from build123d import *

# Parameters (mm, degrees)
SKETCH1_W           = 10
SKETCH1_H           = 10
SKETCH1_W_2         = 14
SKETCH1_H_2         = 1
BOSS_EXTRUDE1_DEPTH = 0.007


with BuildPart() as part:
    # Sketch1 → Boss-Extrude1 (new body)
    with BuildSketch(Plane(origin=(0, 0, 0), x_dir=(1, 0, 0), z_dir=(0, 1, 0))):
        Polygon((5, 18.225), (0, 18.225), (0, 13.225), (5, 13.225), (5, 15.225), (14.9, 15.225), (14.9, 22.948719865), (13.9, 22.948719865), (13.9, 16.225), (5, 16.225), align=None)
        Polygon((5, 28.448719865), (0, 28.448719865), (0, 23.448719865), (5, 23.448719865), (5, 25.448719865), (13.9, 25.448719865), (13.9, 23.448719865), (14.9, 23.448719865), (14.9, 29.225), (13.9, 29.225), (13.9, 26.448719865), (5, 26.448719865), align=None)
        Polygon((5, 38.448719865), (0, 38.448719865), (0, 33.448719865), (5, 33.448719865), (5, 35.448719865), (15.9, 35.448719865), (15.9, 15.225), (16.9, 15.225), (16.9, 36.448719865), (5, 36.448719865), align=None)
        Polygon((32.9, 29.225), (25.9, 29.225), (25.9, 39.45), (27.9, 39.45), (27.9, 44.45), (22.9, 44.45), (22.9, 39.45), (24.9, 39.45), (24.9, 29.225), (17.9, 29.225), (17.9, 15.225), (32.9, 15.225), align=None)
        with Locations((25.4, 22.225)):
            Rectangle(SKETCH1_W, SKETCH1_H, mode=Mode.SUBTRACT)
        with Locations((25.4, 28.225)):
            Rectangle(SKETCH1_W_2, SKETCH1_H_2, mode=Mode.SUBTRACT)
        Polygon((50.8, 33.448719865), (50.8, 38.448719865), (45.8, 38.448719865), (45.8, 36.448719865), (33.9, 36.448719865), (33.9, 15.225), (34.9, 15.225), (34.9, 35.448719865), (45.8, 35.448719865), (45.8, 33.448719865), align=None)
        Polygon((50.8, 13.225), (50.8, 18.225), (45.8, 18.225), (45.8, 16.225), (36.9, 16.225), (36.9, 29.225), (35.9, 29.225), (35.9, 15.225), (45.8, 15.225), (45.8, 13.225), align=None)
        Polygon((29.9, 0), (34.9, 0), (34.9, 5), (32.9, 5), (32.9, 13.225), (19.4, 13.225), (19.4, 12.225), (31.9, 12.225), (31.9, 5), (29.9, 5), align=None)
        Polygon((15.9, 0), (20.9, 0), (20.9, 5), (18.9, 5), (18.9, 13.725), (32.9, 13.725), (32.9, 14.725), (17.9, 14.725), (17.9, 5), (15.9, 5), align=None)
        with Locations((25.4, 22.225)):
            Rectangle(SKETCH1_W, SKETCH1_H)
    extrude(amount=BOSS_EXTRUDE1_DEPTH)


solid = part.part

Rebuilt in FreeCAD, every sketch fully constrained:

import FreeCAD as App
import Part
import Sketcher
Q = App.Units.Quantity

doc = App.newDocument("Part")
body = doc.addObject("PartDesign::Body", "Body")
body.AllowCompound = True

sketch1 = body.newObject("Sketcher::SketchObject", "Sketch")
sketch1.AttachmentSupport = (doc.getObject("XZ_Plane"), [""])
sketch1.MapMode = "FlatFace"
sketch1.addGeometry([
    Part.LineSegment(App.Vector(5, -18.2, 0), App.Vector(0, -18.2, 0)),
    Part.LineSegment(App.Vector(0, -18.2, 0), App.Vector(0, -13.2, 0)),
    Part.LineSegment(App.Vector(0, -13.2, 0), App.Vector(5, -13.2, 0)),
    Part.LineSegment(App.Vector(5, -13.2, 0), App.Vector(5, -15.2, 0)),
    Part.LineSegment(App.Vector(5, -15.2, 0), App.Vector(14.9, -15.2, 0)),
    Part.LineSegment(App.Vector(14.9, -15.2, 0), App.Vector(14.9, -22.9, 0)),
    Part.LineSegment(App.Vector(14.9, -22.9, 0), App.Vector(13.9, -22.9, 0)),
    Part.LineSegment(App.Vector(13.9, -22.9, 0), App.Vector(13.9, -16.2, 0)),
    Part.LineSegment(App.Vector(13.9, -16.2, 0), App.Vector(5, -16.2, 0)),
    Part.LineSegment(App.Vector(5, -16.2, 0), App.Vector(5, -18.2, 0)),
    Part.LineSegment(App.Vector(5, -28.4, 0), App.Vector(0, -28.4, 0)),
    Part.LineSegment(App.Vector(0, -28.4, 0), App.Vector(0, -23.4, 0)),
    Part.LineSegment(App.Vector(0, -23.4, 0), App.Vector(5, -23.4, 0)),
    Part.LineSegment(App.Vector(5, -23.4, 0), App.Vector(5, -25.4, 0)),
    Part.LineSegment(App.Vector(5, -25.4, 0), App.Vector(13.9, -25.4, 0)),
    Part.LineSegment(App.Vector(13.9, -25.4, 0), App.Vector(13.9, -23.4, 0)),
    Part.LineSegment(App.Vector(13.9, -23.4, 0), App.Vector(14.9, -23.4, 0)),
    Part.LineSegment(App.Vector(14.9, -23.4, 0), App.Vector(14.9, -29.2, 0)),
    Part.LineSegment(App.Vector(14.9, -29.2, 0), App.Vector(13.9, -29.2, 0)),
    Part.LineSegment(App.Vector(13.9, -29.2, 0), App.Vector(13.9, -26.4, 0)),
    Part.LineSegment(App.Vector(13.9, -26.4, 0), App.Vector(5, -26.4, 0)),
    Part.LineSegment(App.Vector(5, -26.4, 0), App.Vector(5, -28.4, 0)),
    Part.LineSegment(App.Vector(5, -38.4, 0), App.Vector(0, -38.4, 0)),
    Part.LineSegment(App.Vector(0, -38.4, 0), App.Vector(0, -33.4, 0)),
    Part.LineSegment(App.Vector(0, -33.4, 0), App.Vector(5, -33.4, 0)),
    Part.LineSegment(App.Vector(5, -33.4, 0), App.Vector(5, -35.4, 0)),
    Part.LineSegment(App.Vector(5, -35.4, 0), App.Vector(15.9, -35.4, 0)),
    Part.LineSegment(App.Vector(15.9, -35.4, 0), App.Vector(15.9, -15.2, 0)),
    Part.LineSegment(App.Vector(15.9, -15.2, 0), App.Vector(16.9, -15.2, 0)),
    Part.LineSegment(App.Vector(16.9, -15.2, 0), App.Vector(16.9, -36.4, 0)),
    Part.LineSegment(App.Vector(16.9, -36.4, 0), App.Vector(5, -36.4, 0)),
    Part.LineSegment(App.Vector(5, -36.4, 0), App.Vector(5, -38.4, 0)),
    Part.LineSegment(App.Vector(32.9, -29.2, 0), App.Vector(25.9, -29.2, 0)),
    Part.LineSegment(App.Vector(25.9, -29.2, 0), App.Vector(25.9, -39.5, 0)),
    Part.LineSegment(App.Vector(25.9, -39.5, 0), App.Vector(27.9, -39.5, 0)),
    Part.LineSegment(App.Vector(27.9, -39.5, 0), App.Vector(27.9, -44.5, 0)),
    Part.LineSegment(App.Vector(27.9, -44.5, 0), App.Vector(22.9, -44.5, 0)),
    Part.LineSegment(App.Vector(22.9, -44.5, 0), App.Vector(22.9, -39.5, 0)),
    Part.LineSegment(App.Vector(22.9, -39.5, 0), App.Vector(24.9, -39.5, 0)),
    Part.LineSegment(App.Vector(24.9, -39.5, 0), App.Vector(24.9, -29.2, 0)),
    Part.LineSegment(App.Vector(24.9, -29.2, 0), App.Vector(17.9, -29.2, 0)),
    Part.LineSegment(App.Vector(17.9, -29.2, 0), App.Vector(17.9, -15.2, 0)),
    Part.LineSegment(App.Vector(17.9, -15.2, 0), App.Vector(32.9, -15.2, 0)),
    Part.LineSegment(App.Vector(32.9, -15.2, 0), App.Vector(32.9, -29.2, 0)),
    Part.LineSegment(App.Vector(32.4, -27.7, 0), App.Vector(18.4, -27.7, 0)),
    Part.LineSegment(App.Vector(18.4, -27.7, 0), App.Vector(18.4, -28.7, 0)),
    Part.LineSegment(App.Vector(18.4, -28.7, 0), App.Vector(32.4, -28.7, 0)),
    Part.LineSegment(App.Vector(32.4, -28.7, 0), App.Vector(32.4, -27.7, 0)),
    Part.LineSegment(App.Vector(50.8, -33.4, 0), App.Vector(50.8, -38.4, 0)),
    Part.LineSegment(App.Vector(50.8, -38.4, 0), App.Vector(45.8, -38.4, 0)),
    Part.LineSegment(App.Vector(45.8, -38.4, 0), App.Vector(45.8, -36.4, 0)),
    Part.LineSegment(App.Vector(45.8, -36.4, 0), App.Vector(33.9, -36.4, 0)),
    Part.LineSegment(App.Vector(33.9, -36.4, 0), App.Vector(33.9, -15.2, 0)),
    Part.LineSegment(App.Vector(33.9, -15.2, 0), App.Vector(34.9, -15.2, 0)),
    Part.LineSegment(App.Vector(34.9, -15.2, 0), App.Vector(34.9, -35.4, 0)),
    Part.LineSegment(App.Vector(34.9, -35.4, 0), App.Vector(45.8, -35.4, 0)),
    Part.LineSegment(App.Vector(45.8, -35.4, 0), App.Vector(45.8, -33.4, 0)),
    Part.LineSegment(App.Vector(45.8, -33.4, 0), App.Vector(50.8, -33.4, 0)),
    Part.LineSegment(App.Vector(50.8, -13.2, 0), App.Vector(50.8, -18.2, 0)),
    Part.LineSegment(App.Vector(50.8, -18.2, 0), App.Vector(45.8, -18.2, 0)),
    Part.LineSegment(App.Vector(45.8, -18.2, 0), App.Vector(45.8, -16.2, 0)),
    Part.LineSegment(App.Vector(45.8, -16.2, 0), App.Vector(36.9, -16.2, 0)),
    Part.LineSegment(App.Vector(36.9, -16.2, 0), App.Vector(36.9, -29.2, 0)),
    Part.LineSegment(App.Vector(36.9, -29.2, 0), App.Vector(35.9, -29.2, 0)),
    Part.LineSegment(App.Vector(35.9, -29.2, 0), App.Vector(35.9, -15.2, 0)),
    Part.LineSegment(App.Vector(35.9, -15.2, 0), App.Vector(45.8, -15.2, 0)),
    Part.LineSegment(App.Vector(45.8, -15.2, 0), App.Vector(45.8, -13.2, 0)),
    Part.LineSegment(App.Vector(45.8, -13.2, 0), App.Vector(50.8, -13.2, 0)),
    Part.LineSegment(App.Vector(29.9, 0, 0), App.Vector(34.9, 0, 0)),
    Part.LineSegment(App.Vector(34.9, 0, 0), App.Vector(34.9, -5, 0)),
    Part.LineSegment(App.Vector(34.9, -5, 0), App.Vector(32.9, -5, 0)),
    Part.LineSegment(App.Vector(32.9, -5, 0), App.Vector(32.9, -13.2, 0)),
    Part.LineSegment(App.Vector(32.9, -13.2, 0), App.Vector(19.4, -13.2, 0)),
    Part.LineSegment(App.Vector(19.4, -13.2, 0), App.Vector(19.4, -12.2, 0)),
    Part.LineSegment(App.Vector(19.4, -12.2, 0), App.Vector(31.9, -12.2, 0)),
    Part.LineSegment(App.Vector(31.9, -12.2, 0), App.Vector(31.9, -5, 0)),
    Part.LineSegment(App.Vector(31.9, -5, 0), App.Vector(29.9, -5, 0)),
    Part.LineSegment(App.Vector(29.9, -5, 0), App.Vector(29.9, 0, 0)),
    Part.LineSegment(App.Vector(15.9, 0, 0), App.Vector(20.9, 0, 0)),
    Part.LineSegment(App.Vector(20.9, 0, 0), App.Vector(20.9, -5, 0)),
    Part.LineSegment(App.Vector(20.9, -5, 0), App.Vector(18.9, -5, 0)),
    Part.LineSegment(App.Vector(18.9, -5, 0), App.Vector(18.9, -13.7, 0)),
    Part.LineSegment(App.Vector(18.9, -13.7, 0), App.Vector(32.9, -13.7, 0)),
    Part.LineSegment(App.Vector(32.9, -13.7, 0), App.Vector(32.9, -14.7, 0)),
    Part.LineSegment(App.Vector(32.9, -14.7, 0), App.Vector(17.9, -14.7, 0)),
    Part.LineSegment(App.Vector(17.9, -14.7, 0), App.Vector(17.9, -5, 0)),
    Part.LineSegment(App.Vector(17.9, -5, 0), App.Vector(15.9, -5, 0)),
    Part.LineSegment(App.Vector(15.9, -5, 0), App.Vector(15.9, 0, 0)),
], False)
sketch1.addConstraint([
    Sketcher.Constraint("Coincident", 0, 2, 1, 1),
    Sketcher.Constraint("Coincident", 1, 2, 2, 1),
    Sketcher.Constraint("Coincident", 2, 2, 3, 1),
    Sketcher.Constraint("Coincident", 3, 2, 4, 1),
    Sketcher.Constraint("Coincident", 4, 2, 5, 1),
    Sketcher.Constraint("Coincident", 5, 2, 6, 1),
    Sketcher.Constraint("Coincident", 6, 2, 7, 1),
    Sketcher.Constraint("Coincident", 7, 2, 8, 1),
    Sketcher.Constraint("Coincident", 8, 2, 9, 1),
    Sketcher.Constraint("Coincident", 9, 2, 0, 1),
    Sketcher.Constraint("Coincident", 10, 2, 11, 1),
    Sketcher.Constraint("Coincident", 11, 2, 12, 1),
    Sketcher.Constraint("Coincident", 12, 2, 13, 1),
    Sketcher.Constraint("Coincident", 13, 2, 14, 1),
    Sketcher.Constraint("Coincident", 14, 2, 15, 1),
    Sketcher.Constraint("Coincident", 15, 2, 16, 1),
    Sketcher.Constraint("Coincident", 16, 2, 17, 1),
    Sketcher.Constraint("Coincident", 17, 2, 18, 1),
    Sketcher.Constraint("Coincident", 18, 2, 19, 1),
    Sketcher.Constraint("Coincident", 19, 2, 20, 1),
    Sketcher.Constraint("Coincident", 20, 2, 21, 1),
    Sketcher.Constraint("Coincident", 21, 2, 10, 1),
    Sketcher.Constraint("Coincident", 22, 2, 23, 1),
    Sketcher.Constraint("Coincident", 23, 2, 24, 1),
    Sketcher.Constraint("Coincident", 24, 2, 25, 1),
    Sketcher.Constraint("Coincident", 25, 2, 26, 1),
    Sketcher.Constraint("Coincident", 26, 2, 27, 1),
    Sketcher.Constraint("Coincident", 27, 2, 28, 1),
    Sketcher.Constraint("Coincident", 28, 2, 29, 1),
    Sketcher.Constraint("Coincident", 29, 2, 30, 1),
    Sketcher.Constraint("Coincident", 30, 2, 31, 1),
    Sketcher.Constraint("Coincident", 31, 2, 22, 1),
    Sketcher.Constraint("Coincident", 32, 2, 33, 1),
    Sketcher.Constraint("Coincident", 33, 2, 34, 1),
    Sketcher.Constraint("Coincident", 34, 2, 35, 1),
    Sketcher.Constraint("Coincident", 35, 2, 36, 1),
    Sketcher.Constraint("Coincident", 36, 2, 37, 1),
    Sketcher.Constraint("Coincident", 37, 2, 38, 1),
    Sketcher.Constraint("Coincident", 38, 2, 39, 1),
    Sketcher.Constraint("Coincident", 39, 2, 40, 1),
    Sketcher.Constraint("Coincident", 40, 2, 41, 1),
    Sketcher.Constraint("Coincident", 41, 2, 42, 1),
    Sketcher.Constraint("Coincident", 42, 2, 43, 1),
    Sketcher.Constraint("Coincident", 43, 2, 32, 1),
    Sketcher.Constraint("Coincident", 44, 2, 45, 1),
    Sketcher.Constraint("Coincident", 45, 2, 46, 1),
    Sketcher.Constraint("Coincident", 46, 2, 47, 1),
    Sketcher.Constraint("Coincident", 47, 2, 44, 1),
    Sketcher.Constraint("Coincident", 48, 2, 49, 1),
    Sketcher.Constraint("Coincident", 49, 2, 50, 1),
    Sketcher.Constraint("Coincident", 50, 2, 51, 1),
    Sketcher.Constraint("Coincident", 51, 2, 52, 1),
    Sketcher.Constraint("Coincident", 52, 2, 53, 1),
    Sketcher.Constraint("Coincident", 53, 2, 54, 1),
    Sketcher.Constraint("Coincident", 54, 2, 55, 1),
    Sketcher.Constraint("Coincident", 55, 2, 56, 1),
    Sketcher.Constraint("Coincident", 56, 2, 57, 1),
    Sketcher.Constraint("Coincident", 57, 2, 48, 1),
    Sketcher.Constraint("Coincident", 58, 2, 59, 1),
    Sketcher.Constraint("Coincident", 59, 2, 60, 1),
    Sketcher.Constraint("Coincident", 60, 2, 61, 1),
    Sketcher.Constraint("Coincident", 61, 2, 62, 1),
    Sketcher.Constraint("Coincident", 62, 2, 63, 1),
    Sketcher.Constraint("Coincident", 63, 2, 64, 1),
    Sketcher.Constraint("Coincident", 64, 2, 65, 1),
    Sketcher.Constraint("Coincident", 65, 2, 66, 1),
    Sketcher.Constraint("Coincident", 66, 2, 67, 1),
    Sketcher.Constraint("Coincident", 67, 2, 58, 1),
    Sketcher.Constraint("Coincident", 68, 2, 69, 1),
    Sketcher.Constraint("Coincident", 69, 2, 70, 1),
    Sketcher.Constraint("Coincident", 70, 2, 71, 1),
    Sketcher.Constraint("Coincident", 71, 2, 72, 1),
    Sketcher.Constraint("Coincident", 72, 2, 73, 1),
    Sketcher.Constraint("Coincident", 73, 2, 74, 1),
    Sketcher.Constraint("Coincident", 74, 2, 75, 1),
    Sketcher.Constraint("Coincident", 75, 2, 76, 1),
    Sketcher.Constraint("Coincident", 76, 2, 77, 1),
    Sketcher.Constraint("Coincident", 77, 2, 68, 1),
    Sketcher.Constraint("Coincident", 78, 2, 79, 1),
    Sketcher.Constraint("Coincident", 79, 2, 80, 1),
    Sketcher.Constraint("Coincident", 80, 2, 81, 1),
    Sketcher.Constraint("Coincident", 81, 2, 82, 1),
    Sketcher.Constraint("Coincident", 82, 2, 83, 1),
    Sketcher.Constraint("Coincident", 83, 2, 84, 1),
    Sketcher.Constraint("Coincident", 84, 2, 85, 1),
    Sketcher.Constraint("Coincident", 85, 2, 86, 1),
    Sketcher.Constraint("Coincident", 86, 2, 87, 1),
    Sketcher.Constraint("Coincident", 87, 2, 78, 1),
    Sketcher.Constraint("Horizontal", 0),
    Sketcher.Constraint("Vertical", 1),
    Sketcher.Constraint("Horizontal", 2),
    Sketcher.Constraint("Vertical", 3),
    Sketcher.Constraint("Horizontal", 4),
    Sketcher.Constraint("Vertical", 5),
    Sketcher.Constraint("Horizontal", 6),
    Sketcher.Constraint("Vertical", 7),
    Sketcher.Constraint("Horizontal", 8),
    Sketcher.Constraint("Vertical", 9),
    Sketcher.Constraint("Horizontal", 10),
    Sketcher.Constraint("Vertical", 11),
    Sketcher.Constraint("Horizontal", 12),
    Sketcher.Constraint("Vertical", 13),
    Sketcher.Constraint("Horizontal", 14),
    Sketcher.Constraint("Vertical", 15),
    Sketcher.Constraint("Horizontal", 16),
    Sketcher.Constraint("Vertical", 17),
    Sketcher.Constraint("Horizontal", 18),
    Sketcher.Constraint("Vertical", 19),
    Sketcher.Constraint("Horizontal", 20),
    Sketcher.Constraint("Vertical", 21),
    Sketcher.Constraint("Horizontal", 22),
    Sketcher.Constraint("Vertical", 23),
    Sketcher.Constraint("Horizontal", 24),
    Sketcher.Constraint("Vertical", 25),
    Sketcher.Constraint("Horizontal", 26),
    Sketcher.Constraint("Vertical", 27),
    Sketcher.Constraint("Horizontal", 28),
    Sketcher.Constraint("Vertical", 29),
    Sketcher.Constraint("Horizontal", 30),
    Sketcher.Constraint("Vertical", 31),
    Sketcher.Constraint("Horizontal", 32),
    Sketcher.Constraint("Vertical", 33),
    Sketcher.Constraint("Horizontal", 34),
    Sketcher.Constraint("Vertical", 35),
    Sketcher.Constraint("Horizontal", 36),
    Sketcher.Constraint("Vertical", 37),
    Sketcher.Constraint("Horizontal", 38),
    Sketcher.Constraint("Vertical", 39),
    Sketcher.Constraint("Horizontal", 40),
    Sketcher.Constraint("Vertical", 41),
    Sketcher.Constraint("Horizontal", 42),
    Sketcher.Constraint("Vertical", 43),
    Sketcher.Constraint("Horizontal", 44),
    Sketcher.Constraint("Vertical", 45),
    Sketcher.Constraint("Horizontal", 46),
    Sketcher.Constraint("Vertical", 47),
    Sketcher.Constraint("Vertical", 48),
    Sketcher.Constraint("Horizontal", 49),
    Sketcher.Constraint("Vertical", 50),
    Sketcher.Constraint("Horizontal", 51),
    Sketcher.Constraint("Vertical", 52),
    Sketcher.Constraint("Horizontal", 53),
    Sketcher.Constraint("Vertical", 54),
    Sketcher.Constraint("Horizontal", 55),
    Sketcher.Constraint("Vertical", 56),
    Sketcher.Constraint("Horizontal", 57),
    Sketcher.Constraint("Vertical", 58),
    Sketcher.Constraint("Horizontal", 59),
    Sketcher.Constraint("Vertical", 60),
    Sketcher.Constraint("Horizontal", 61),
    Sketcher.Constraint("Vertical", 62),
    Sketcher.Constraint("Horizontal", 63),
    Sketcher.Constraint("Vertical", 64),
    Sketcher.Constraint("Horizontal", 65),
    Sketcher.Constraint("Vertical", 66),
    Sketcher.Constraint("Horizontal", 67),
    Sketcher.Constraint("Horizontal", 68),
    Sketcher.Constraint("Vertical", 69),
    Sketcher.Constraint("Horizontal", 70),
    Sketcher.Constraint("Vertical", 71),
    Sketcher.Constraint("Horizontal", 72),
    Sketcher.Constraint("Vertical", 73),
    Sketcher.Constraint("Horizontal", 74),
    Sketcher.Constraint("Vertical", 75),
    Sketcher.Constraint("Horizontal", 76),
    Sketcher.Constraint("Vertical", 77),
    Sketcher.Constraint("Horizontal", 78),
    Sketcher.Constraint("Vertical", 79),
    Sketcher.Constraint("Horizontal", 80),
    Sketcher.Constraint("Vertical", 81),
    Sketcher.Constraint("Horizontal", 82),
    Sketcher.Constraint("Vertical", 83),
    Sketcher.Constraint("Horizontal", 84),
    Sketcher.Constraint("Vertical", 85),
    Sketcher.Constraint("Horizontal", 86),
    Sketcher.Constraint("Vertical", 87),
    Sketcher.Constraint("PointOnObject", 0, 2, -2),
    Sketcher.Constraint("PointOnObject", 10, 2, -2),
    Sketcher.Constraint("PointOnObject", 22, 2, -2),
    Sketcher.Constraint("PointOnObject", 68, 2, -1),
    Sketcher.Constraint("PointOnObject", 78, 2, -1),
    Sketcher.Constraint("Horizontal", 12, 2, 15, 2),
    Sketcher.Constraint("Horizontal", 4, 2, 27, 2),
    Sketcher.Constraint("Horizontal", 18, 2, 32, 2),
    Sketcher.Constraint("Horizontal", 34, 2, 37, 2),
    Sketcher.Constraint("Horizontal", 32, 2, 39, 2),
    Sketcher.Constraint("Horizontal", 28, 2, 41, 2),
    Sketcher.Constraint("Horizontal", 31, 2, 48, 2),
    Sketcher.Constraint("Horizontal", 30, 2, 50, 2),
    Sketcher.Constraint("Horizontal", 42, 2, 52, 2),
    Sketcher.Constraint("Horizontal", 26, 2, 54, 2),
    Sketcher.Constraint("Horizontal", 24, 2, 56, 2),
    Sketcher.Constraint("Horizontal", 9, 2, 58, 2),
    Sketcher.Constraint("Horizontal", 8, 2, 60, 2),
    Sketcher.Constraint("Horizontal", 43, 2, 62, 2),
    Sketcher.Constraint("Horizontal", 53, 2, 64, 2),
    Sketcher.Constraint("Horizontal", 2, 2, 66, 2),
    Sketcher.Constraint("Horizontal", 67, 2, 71, 2),
    Sketcher.Constraint("Horizontal", 70, 2, 75, 2),
    Sketcher.Constraint("Horizontal", 76, 2, 79, 2),
    Sketcher.Constraint("Horizontal", 80, 2, 85, 2),
    Sketcher.Constraint("Vertical", 3, 2, 8, 2),
    Sketcher.Constraint("Vertical", 9, 2, 12, 2),
    Sketcher.Constraint("Vertical", 7, 2, 14, 2),
    Sketcher.Constraint("Vertical", 5, 2, 16, 2),
    Sketcher.Constraint("Vertical", 15, 2, 18, 2),
    Sketcher.Constraint("Vertical", 13, 2, 20, 2),
    Sketcher.Constraint("Vertical", 21, 2, 24, 2),
    Sketcher.Constraint("Vertical", 25, 2, 30, 2),
    Sketcher.Constraint("Vertical", 50, 2, 55, 2),
    Sketcher.Constraint("Vertical", 57, 2, 58, 2),
    Sketcher.Constraint("Vertical", 56, 2, 59, 2),
    Sketcher.Constraint("Vertical", 60, 2, 65, 2),
    Sketcher.Constraint("Vertical", 54, 2, 68, 2),
    Sketcher.Constraint("Vertical", 43, 2, 70, 2),
    Sketcher.Constraint("Vertical", 71, 2, 82, 2),
    Sketcher.Constraint("Vertical", 41, 2, 84, 2),
    Sketcher.Constraint("Vertical", 27, 2, 86, 2),
    Sketcher.Constraint("Equal", 18, 28),
    Sketcher.Constraint("Equal", 24, 36),
    Sketcher.Constraint("Equal", 34, 38),
    Sketcher.Constraint("Equal", 32, 40),
    Sketcher.Constraint("Equal", 36, 49),
    Sketcher.Constraint("Equal", 30, 51),
    Sketcher.Constraint("Equal", 28, 53),
    Sketcher.Constraint("Equal", 20, 61),
    Sketcher.Constraint("Equal", 53, 63),
    Sketcher.Constraint("Equal", 67, 68),
    Sketcher.Constraint("Equal", 38, 70),
    Sketcher.Constraint("Equal", 70, 76),
    Sketcher.Constraint("Equal", 68, 78),
    Sketcher.Constraint("Equal", 76, 80),
    Sketcher.Constraint("Equal", 46, 82),
    Sketcher.Constraint("Equal", 80, 86),
    Sketcher.Constraint("Equal", 78, 1),
    Sketcher.Constraint("Equal", 86, 3),
    Sketcher.Constraint("Equal", 3, 9),
    Sketcher.Constraint("Equal", 1, 11),
    Sketcher.Constraint("Equal", 9, 13),
    Sketcher.Constraint("Equal", 15, 21),
    Sketcher.Constraint("Equal", 11, 23),
    Sketcher.Constraint("Equal", 21, 25),
    Sketcher.Constraint("Equal", 25, 31),
    Sketcher.Constraint("Equal", 23, 35),
    Sketcher.Constraint("Equal", 82, 41),
    Sketcher.Constraint("Equal", 63, 45),
    Sketcher.Constraint("Equal", 58, 69),
    Sketcher.Constraint("Equal", 47, 73),
    Sketcher.Constraint("Equal", 73, 83),
    Sketcher.Constraint("DistanceX", 0, 2, 0, 1, Q("5 mm")),
    Sketcher.Constraint("DistanceX", 6, 2, 6, 1, Q("1 mm")),
    Sketcher.Constraint("DistanceX", 32, 2, 32, 1, Q("7 mm")),
    Sketcher.Constraint("DistanceX", 34, 1, 34, 2, Q("2 mm")),
    Sketcher.Constraint("DistanceX", 4, 1, 4, 2, Q("9.9 mm")),
    Sketcher.Constraint("DistanceX", 26, 1, 26, 2, Q("10.9 mm")),
    Sketcher.Constraint("DistanceX", 72, 2, 72, 1, Q("13.5 mm")),
    Sketcher.Constraint("DistanceX", -1, 1, 44, 2, Q("18.4 mm")),
    Sketcher.Constraint("DistanceY", 33, 2, 33, 1, Q("10.225 mm")),
    Sketcher.Constraint("DistanceY", 71, 2, 71, 1, Q("8.225 mm")),
    Sketcher.Constraint("DistanceY", 81, 2, 81, 1, Q("8.725 mm")),
    Sketcher.Constraint("DistanceY", 44, 2, -1, 1, Q("27.725 mm")),
    Sketcher.Constraint("DistanceY", 5, 2, 5, 1, Q("7.72372 mm")),
    Sketcher.Constraint("DistanceY", 17, 2, 17, 1, Q("5.77628 mm")),
    Sketcher.Constraint("DistanceY", 27, 1, 27, 2, Q("20.22372 mm")),
])
pad1 = body.newObject("PartDesign::Pad", "Pad")
pad1.Profile = sketch1
pad1.Length = 0.007
pad1.Reversed = True

doc.recompute()
